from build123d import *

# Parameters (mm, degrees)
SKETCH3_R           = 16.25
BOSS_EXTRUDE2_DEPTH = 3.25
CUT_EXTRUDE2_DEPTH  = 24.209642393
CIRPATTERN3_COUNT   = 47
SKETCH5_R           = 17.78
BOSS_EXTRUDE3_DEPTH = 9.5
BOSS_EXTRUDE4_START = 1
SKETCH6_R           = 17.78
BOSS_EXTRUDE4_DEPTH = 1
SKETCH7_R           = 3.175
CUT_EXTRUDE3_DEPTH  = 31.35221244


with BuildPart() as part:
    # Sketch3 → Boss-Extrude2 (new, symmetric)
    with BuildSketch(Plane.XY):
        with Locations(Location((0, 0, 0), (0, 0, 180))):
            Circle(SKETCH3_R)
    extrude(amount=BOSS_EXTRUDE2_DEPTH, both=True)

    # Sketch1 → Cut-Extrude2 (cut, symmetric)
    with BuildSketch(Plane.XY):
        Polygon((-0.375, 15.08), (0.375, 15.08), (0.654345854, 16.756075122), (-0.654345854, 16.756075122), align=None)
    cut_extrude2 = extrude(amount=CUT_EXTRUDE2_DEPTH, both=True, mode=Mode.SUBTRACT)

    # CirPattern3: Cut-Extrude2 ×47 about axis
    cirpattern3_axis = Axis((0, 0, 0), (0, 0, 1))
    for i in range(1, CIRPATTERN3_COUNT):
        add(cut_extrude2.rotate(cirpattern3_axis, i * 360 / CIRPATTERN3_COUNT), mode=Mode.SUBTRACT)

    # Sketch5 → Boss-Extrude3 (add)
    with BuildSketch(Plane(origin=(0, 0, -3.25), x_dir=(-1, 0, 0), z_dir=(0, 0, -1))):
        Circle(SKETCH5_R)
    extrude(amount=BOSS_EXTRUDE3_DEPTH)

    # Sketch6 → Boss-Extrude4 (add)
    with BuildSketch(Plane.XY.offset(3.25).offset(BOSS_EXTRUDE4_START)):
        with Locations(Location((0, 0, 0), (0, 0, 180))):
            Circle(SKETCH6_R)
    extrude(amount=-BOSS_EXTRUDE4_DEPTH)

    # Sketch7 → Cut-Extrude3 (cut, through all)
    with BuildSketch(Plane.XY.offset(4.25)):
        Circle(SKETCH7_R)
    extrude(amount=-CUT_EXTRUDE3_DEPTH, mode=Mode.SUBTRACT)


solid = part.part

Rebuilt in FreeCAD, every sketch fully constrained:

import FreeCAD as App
import Part
import Sketcher
from FreeCAD import Vector


def add_polygon(sketch, points):
    """Adds a closed chain of lines whose ends are joined by coincident constraints."""
    first, n = sketch.GeometryCount, len(points)
    for a, b in zip(points, points[1:] + points[:1]):
        sketch.addGeometry(Part.LineSegment(App.Vector(*a, 0), App.Vector(*b, 0)), False)
    for i in range(n):
        sketch.addConstraint(Sketcher.Constraint("Coincident", first + i, 2, first + (i + 1) % n, 1))

doc = App.newDocument("Part")
body = doc.addObject("PartDesign::Body", "Body")

sketch1 = body.newObject("Sketcher::SketchObject", "Sketch")
sketch1.AttachmentSupport = (doc.getObject("XY_Plane"), [""])
sketch1.MapMode = "FlatFace"
sketch1.addGeometry(Part.Circle(Vector(0, 0, 0), Vector(0, 0, 1), 16), False)
sketch1.addConstraint([
    Sketcher.Constraint("Coincident", 0, 3, -1, 1),
    Sketcher.Constraint("Diameter", 0, 32.5),
])
pad1 = body.newObject("PartDesign::Pad", "Pad")
pad1.Profile = sketch1
pad1.Length = 6.5
pad1.Midplane = True

sketch2 = body.newObject("Sketcher::SketchObject", "Sketch001")
sketch2.AttachmentSupport = (doc.getObject("XY_Plane"), [""])
sketch2.MapMode = "FlatFace"
add_polygon(sketch2, [(-0.4, 15.1), (0.4, 15.1), (0.7, 16.8), (-0.7, 16.8)])
sketch2.addConstraint([
    Sketcher.Constraint("Horizontal", 0),
    Sketcher.Constraint("Horizontal", 2),
    Sketcher.Constraint("Equal", 1, 3),
    Sketcher.Constraint("DistanceX", 0, 1, 0, 2, 0.75),
    Sketcher.Constraint("DistanceY", -1, 1, 0, 2, 15.08),
    Sketcher.Constraint("DistanceX", -1, 1, 0, 2, 0.375),
    Sketcher.Constraint("DistanceX", 2, 2, 2, 1, 1.308692),
    Sketcher.Constraint("Distance", 1, 1.699194),
])
pocket1 = body.newObject("PartDesign::Pocket", "Pocket")
pocket1.Profile = sketch2
pocket1.Length = 48.419285
pocket1.Midplane = True
doc.recompute()

polarpattern = body.newObject("PartDesign::PolarPattern", "PolarPattern")
polarpattern.Originals = [pocket1]
polarpattern.Axis = (doc.getObject("Z_Axis"), [""])
polarpattern.Angle = 360
polarpattern.Occurrences = 47
body.Tip = polarpattern

sketch3 = body.newObject("Sketcher::SketchObject", "Sketch002")
sketch3.AttachmentSupport = (doc.getObject("XY_Plane"), [""])
sketch3.MapMode = "FlatFace"
sketch3.AttachmentOffset = App.Placement(Vector(0, 0, -3.25), App.Rotation())
sketch3.addGeometry(Part.Circle(Vector(0, 0, 0), Vector(0, 0, 1), 18), False)
sketch3.addConstraint([
    Sketcher.Constraint("Coincident", 0, 3, -1, 1),
    Sketcher.Constraint("Diameter", 0, 35.56),
])
pad2 = body.newObject("PartDesign::Pad", "Pad001")
pad2.Profile = sketch3
pad2.Length = 9.5
pad2.Reversed = True

sketch4 = body.newObject("Sketcher::SketchObject", "Sketch003")
sketch4.AttachmentSupport = (doc.getObject("XY_Plane"), [""])
sketch4.MapMode = "FlatFace"
sketch4.AttachmentOffset = App.Placement(Vector(0, 0, 4.25), App.Rotation())
sketch4.addGeometry(Part.Circle(Vector(0, 0, 0), Vector(0, 0, 1), 18), False)
sketch4.addConstraint([
    Sketcher.Constraint("Coincident", 0, 3, -1, 1),
    Sketcher.Constraint("Diameter", 0, 35.56),
])
pad3 = body.newObject("PartDesign::Pad", "Pad002")
pad3.Profile = sketch4
pad3.Length = 1
pad3.Reversed = True

sketch5 = body.newObject("Sketcher::SketchObject", "Sketch004")
sketch5.AttachmentSupport = (doc.getObject("XY_Plane"), [""])
sketch5.MapMode = "FlatFace"
sketch5.AttachmentOffset = App.Placement(Vector(0, 0, 4.25), App.Rotation())
sketch5.addGeometry(Part.Circle(Vector(0, 0, 0), Vector(0, 0, 1), 3.2), False)
sketch5.addConstraint([
    Sketcher.Constraint("Coincident", 0, 3, -1, 1),
    Sketcher.Constraint("Diameter", 0, 6.35),
])
pocket2 = body.newObject("PartDesign::Pocket", "Pocket001")
pocket2.Profile = sketch5
pocket2.Type = "ThroughAll"

doc.recompute()
